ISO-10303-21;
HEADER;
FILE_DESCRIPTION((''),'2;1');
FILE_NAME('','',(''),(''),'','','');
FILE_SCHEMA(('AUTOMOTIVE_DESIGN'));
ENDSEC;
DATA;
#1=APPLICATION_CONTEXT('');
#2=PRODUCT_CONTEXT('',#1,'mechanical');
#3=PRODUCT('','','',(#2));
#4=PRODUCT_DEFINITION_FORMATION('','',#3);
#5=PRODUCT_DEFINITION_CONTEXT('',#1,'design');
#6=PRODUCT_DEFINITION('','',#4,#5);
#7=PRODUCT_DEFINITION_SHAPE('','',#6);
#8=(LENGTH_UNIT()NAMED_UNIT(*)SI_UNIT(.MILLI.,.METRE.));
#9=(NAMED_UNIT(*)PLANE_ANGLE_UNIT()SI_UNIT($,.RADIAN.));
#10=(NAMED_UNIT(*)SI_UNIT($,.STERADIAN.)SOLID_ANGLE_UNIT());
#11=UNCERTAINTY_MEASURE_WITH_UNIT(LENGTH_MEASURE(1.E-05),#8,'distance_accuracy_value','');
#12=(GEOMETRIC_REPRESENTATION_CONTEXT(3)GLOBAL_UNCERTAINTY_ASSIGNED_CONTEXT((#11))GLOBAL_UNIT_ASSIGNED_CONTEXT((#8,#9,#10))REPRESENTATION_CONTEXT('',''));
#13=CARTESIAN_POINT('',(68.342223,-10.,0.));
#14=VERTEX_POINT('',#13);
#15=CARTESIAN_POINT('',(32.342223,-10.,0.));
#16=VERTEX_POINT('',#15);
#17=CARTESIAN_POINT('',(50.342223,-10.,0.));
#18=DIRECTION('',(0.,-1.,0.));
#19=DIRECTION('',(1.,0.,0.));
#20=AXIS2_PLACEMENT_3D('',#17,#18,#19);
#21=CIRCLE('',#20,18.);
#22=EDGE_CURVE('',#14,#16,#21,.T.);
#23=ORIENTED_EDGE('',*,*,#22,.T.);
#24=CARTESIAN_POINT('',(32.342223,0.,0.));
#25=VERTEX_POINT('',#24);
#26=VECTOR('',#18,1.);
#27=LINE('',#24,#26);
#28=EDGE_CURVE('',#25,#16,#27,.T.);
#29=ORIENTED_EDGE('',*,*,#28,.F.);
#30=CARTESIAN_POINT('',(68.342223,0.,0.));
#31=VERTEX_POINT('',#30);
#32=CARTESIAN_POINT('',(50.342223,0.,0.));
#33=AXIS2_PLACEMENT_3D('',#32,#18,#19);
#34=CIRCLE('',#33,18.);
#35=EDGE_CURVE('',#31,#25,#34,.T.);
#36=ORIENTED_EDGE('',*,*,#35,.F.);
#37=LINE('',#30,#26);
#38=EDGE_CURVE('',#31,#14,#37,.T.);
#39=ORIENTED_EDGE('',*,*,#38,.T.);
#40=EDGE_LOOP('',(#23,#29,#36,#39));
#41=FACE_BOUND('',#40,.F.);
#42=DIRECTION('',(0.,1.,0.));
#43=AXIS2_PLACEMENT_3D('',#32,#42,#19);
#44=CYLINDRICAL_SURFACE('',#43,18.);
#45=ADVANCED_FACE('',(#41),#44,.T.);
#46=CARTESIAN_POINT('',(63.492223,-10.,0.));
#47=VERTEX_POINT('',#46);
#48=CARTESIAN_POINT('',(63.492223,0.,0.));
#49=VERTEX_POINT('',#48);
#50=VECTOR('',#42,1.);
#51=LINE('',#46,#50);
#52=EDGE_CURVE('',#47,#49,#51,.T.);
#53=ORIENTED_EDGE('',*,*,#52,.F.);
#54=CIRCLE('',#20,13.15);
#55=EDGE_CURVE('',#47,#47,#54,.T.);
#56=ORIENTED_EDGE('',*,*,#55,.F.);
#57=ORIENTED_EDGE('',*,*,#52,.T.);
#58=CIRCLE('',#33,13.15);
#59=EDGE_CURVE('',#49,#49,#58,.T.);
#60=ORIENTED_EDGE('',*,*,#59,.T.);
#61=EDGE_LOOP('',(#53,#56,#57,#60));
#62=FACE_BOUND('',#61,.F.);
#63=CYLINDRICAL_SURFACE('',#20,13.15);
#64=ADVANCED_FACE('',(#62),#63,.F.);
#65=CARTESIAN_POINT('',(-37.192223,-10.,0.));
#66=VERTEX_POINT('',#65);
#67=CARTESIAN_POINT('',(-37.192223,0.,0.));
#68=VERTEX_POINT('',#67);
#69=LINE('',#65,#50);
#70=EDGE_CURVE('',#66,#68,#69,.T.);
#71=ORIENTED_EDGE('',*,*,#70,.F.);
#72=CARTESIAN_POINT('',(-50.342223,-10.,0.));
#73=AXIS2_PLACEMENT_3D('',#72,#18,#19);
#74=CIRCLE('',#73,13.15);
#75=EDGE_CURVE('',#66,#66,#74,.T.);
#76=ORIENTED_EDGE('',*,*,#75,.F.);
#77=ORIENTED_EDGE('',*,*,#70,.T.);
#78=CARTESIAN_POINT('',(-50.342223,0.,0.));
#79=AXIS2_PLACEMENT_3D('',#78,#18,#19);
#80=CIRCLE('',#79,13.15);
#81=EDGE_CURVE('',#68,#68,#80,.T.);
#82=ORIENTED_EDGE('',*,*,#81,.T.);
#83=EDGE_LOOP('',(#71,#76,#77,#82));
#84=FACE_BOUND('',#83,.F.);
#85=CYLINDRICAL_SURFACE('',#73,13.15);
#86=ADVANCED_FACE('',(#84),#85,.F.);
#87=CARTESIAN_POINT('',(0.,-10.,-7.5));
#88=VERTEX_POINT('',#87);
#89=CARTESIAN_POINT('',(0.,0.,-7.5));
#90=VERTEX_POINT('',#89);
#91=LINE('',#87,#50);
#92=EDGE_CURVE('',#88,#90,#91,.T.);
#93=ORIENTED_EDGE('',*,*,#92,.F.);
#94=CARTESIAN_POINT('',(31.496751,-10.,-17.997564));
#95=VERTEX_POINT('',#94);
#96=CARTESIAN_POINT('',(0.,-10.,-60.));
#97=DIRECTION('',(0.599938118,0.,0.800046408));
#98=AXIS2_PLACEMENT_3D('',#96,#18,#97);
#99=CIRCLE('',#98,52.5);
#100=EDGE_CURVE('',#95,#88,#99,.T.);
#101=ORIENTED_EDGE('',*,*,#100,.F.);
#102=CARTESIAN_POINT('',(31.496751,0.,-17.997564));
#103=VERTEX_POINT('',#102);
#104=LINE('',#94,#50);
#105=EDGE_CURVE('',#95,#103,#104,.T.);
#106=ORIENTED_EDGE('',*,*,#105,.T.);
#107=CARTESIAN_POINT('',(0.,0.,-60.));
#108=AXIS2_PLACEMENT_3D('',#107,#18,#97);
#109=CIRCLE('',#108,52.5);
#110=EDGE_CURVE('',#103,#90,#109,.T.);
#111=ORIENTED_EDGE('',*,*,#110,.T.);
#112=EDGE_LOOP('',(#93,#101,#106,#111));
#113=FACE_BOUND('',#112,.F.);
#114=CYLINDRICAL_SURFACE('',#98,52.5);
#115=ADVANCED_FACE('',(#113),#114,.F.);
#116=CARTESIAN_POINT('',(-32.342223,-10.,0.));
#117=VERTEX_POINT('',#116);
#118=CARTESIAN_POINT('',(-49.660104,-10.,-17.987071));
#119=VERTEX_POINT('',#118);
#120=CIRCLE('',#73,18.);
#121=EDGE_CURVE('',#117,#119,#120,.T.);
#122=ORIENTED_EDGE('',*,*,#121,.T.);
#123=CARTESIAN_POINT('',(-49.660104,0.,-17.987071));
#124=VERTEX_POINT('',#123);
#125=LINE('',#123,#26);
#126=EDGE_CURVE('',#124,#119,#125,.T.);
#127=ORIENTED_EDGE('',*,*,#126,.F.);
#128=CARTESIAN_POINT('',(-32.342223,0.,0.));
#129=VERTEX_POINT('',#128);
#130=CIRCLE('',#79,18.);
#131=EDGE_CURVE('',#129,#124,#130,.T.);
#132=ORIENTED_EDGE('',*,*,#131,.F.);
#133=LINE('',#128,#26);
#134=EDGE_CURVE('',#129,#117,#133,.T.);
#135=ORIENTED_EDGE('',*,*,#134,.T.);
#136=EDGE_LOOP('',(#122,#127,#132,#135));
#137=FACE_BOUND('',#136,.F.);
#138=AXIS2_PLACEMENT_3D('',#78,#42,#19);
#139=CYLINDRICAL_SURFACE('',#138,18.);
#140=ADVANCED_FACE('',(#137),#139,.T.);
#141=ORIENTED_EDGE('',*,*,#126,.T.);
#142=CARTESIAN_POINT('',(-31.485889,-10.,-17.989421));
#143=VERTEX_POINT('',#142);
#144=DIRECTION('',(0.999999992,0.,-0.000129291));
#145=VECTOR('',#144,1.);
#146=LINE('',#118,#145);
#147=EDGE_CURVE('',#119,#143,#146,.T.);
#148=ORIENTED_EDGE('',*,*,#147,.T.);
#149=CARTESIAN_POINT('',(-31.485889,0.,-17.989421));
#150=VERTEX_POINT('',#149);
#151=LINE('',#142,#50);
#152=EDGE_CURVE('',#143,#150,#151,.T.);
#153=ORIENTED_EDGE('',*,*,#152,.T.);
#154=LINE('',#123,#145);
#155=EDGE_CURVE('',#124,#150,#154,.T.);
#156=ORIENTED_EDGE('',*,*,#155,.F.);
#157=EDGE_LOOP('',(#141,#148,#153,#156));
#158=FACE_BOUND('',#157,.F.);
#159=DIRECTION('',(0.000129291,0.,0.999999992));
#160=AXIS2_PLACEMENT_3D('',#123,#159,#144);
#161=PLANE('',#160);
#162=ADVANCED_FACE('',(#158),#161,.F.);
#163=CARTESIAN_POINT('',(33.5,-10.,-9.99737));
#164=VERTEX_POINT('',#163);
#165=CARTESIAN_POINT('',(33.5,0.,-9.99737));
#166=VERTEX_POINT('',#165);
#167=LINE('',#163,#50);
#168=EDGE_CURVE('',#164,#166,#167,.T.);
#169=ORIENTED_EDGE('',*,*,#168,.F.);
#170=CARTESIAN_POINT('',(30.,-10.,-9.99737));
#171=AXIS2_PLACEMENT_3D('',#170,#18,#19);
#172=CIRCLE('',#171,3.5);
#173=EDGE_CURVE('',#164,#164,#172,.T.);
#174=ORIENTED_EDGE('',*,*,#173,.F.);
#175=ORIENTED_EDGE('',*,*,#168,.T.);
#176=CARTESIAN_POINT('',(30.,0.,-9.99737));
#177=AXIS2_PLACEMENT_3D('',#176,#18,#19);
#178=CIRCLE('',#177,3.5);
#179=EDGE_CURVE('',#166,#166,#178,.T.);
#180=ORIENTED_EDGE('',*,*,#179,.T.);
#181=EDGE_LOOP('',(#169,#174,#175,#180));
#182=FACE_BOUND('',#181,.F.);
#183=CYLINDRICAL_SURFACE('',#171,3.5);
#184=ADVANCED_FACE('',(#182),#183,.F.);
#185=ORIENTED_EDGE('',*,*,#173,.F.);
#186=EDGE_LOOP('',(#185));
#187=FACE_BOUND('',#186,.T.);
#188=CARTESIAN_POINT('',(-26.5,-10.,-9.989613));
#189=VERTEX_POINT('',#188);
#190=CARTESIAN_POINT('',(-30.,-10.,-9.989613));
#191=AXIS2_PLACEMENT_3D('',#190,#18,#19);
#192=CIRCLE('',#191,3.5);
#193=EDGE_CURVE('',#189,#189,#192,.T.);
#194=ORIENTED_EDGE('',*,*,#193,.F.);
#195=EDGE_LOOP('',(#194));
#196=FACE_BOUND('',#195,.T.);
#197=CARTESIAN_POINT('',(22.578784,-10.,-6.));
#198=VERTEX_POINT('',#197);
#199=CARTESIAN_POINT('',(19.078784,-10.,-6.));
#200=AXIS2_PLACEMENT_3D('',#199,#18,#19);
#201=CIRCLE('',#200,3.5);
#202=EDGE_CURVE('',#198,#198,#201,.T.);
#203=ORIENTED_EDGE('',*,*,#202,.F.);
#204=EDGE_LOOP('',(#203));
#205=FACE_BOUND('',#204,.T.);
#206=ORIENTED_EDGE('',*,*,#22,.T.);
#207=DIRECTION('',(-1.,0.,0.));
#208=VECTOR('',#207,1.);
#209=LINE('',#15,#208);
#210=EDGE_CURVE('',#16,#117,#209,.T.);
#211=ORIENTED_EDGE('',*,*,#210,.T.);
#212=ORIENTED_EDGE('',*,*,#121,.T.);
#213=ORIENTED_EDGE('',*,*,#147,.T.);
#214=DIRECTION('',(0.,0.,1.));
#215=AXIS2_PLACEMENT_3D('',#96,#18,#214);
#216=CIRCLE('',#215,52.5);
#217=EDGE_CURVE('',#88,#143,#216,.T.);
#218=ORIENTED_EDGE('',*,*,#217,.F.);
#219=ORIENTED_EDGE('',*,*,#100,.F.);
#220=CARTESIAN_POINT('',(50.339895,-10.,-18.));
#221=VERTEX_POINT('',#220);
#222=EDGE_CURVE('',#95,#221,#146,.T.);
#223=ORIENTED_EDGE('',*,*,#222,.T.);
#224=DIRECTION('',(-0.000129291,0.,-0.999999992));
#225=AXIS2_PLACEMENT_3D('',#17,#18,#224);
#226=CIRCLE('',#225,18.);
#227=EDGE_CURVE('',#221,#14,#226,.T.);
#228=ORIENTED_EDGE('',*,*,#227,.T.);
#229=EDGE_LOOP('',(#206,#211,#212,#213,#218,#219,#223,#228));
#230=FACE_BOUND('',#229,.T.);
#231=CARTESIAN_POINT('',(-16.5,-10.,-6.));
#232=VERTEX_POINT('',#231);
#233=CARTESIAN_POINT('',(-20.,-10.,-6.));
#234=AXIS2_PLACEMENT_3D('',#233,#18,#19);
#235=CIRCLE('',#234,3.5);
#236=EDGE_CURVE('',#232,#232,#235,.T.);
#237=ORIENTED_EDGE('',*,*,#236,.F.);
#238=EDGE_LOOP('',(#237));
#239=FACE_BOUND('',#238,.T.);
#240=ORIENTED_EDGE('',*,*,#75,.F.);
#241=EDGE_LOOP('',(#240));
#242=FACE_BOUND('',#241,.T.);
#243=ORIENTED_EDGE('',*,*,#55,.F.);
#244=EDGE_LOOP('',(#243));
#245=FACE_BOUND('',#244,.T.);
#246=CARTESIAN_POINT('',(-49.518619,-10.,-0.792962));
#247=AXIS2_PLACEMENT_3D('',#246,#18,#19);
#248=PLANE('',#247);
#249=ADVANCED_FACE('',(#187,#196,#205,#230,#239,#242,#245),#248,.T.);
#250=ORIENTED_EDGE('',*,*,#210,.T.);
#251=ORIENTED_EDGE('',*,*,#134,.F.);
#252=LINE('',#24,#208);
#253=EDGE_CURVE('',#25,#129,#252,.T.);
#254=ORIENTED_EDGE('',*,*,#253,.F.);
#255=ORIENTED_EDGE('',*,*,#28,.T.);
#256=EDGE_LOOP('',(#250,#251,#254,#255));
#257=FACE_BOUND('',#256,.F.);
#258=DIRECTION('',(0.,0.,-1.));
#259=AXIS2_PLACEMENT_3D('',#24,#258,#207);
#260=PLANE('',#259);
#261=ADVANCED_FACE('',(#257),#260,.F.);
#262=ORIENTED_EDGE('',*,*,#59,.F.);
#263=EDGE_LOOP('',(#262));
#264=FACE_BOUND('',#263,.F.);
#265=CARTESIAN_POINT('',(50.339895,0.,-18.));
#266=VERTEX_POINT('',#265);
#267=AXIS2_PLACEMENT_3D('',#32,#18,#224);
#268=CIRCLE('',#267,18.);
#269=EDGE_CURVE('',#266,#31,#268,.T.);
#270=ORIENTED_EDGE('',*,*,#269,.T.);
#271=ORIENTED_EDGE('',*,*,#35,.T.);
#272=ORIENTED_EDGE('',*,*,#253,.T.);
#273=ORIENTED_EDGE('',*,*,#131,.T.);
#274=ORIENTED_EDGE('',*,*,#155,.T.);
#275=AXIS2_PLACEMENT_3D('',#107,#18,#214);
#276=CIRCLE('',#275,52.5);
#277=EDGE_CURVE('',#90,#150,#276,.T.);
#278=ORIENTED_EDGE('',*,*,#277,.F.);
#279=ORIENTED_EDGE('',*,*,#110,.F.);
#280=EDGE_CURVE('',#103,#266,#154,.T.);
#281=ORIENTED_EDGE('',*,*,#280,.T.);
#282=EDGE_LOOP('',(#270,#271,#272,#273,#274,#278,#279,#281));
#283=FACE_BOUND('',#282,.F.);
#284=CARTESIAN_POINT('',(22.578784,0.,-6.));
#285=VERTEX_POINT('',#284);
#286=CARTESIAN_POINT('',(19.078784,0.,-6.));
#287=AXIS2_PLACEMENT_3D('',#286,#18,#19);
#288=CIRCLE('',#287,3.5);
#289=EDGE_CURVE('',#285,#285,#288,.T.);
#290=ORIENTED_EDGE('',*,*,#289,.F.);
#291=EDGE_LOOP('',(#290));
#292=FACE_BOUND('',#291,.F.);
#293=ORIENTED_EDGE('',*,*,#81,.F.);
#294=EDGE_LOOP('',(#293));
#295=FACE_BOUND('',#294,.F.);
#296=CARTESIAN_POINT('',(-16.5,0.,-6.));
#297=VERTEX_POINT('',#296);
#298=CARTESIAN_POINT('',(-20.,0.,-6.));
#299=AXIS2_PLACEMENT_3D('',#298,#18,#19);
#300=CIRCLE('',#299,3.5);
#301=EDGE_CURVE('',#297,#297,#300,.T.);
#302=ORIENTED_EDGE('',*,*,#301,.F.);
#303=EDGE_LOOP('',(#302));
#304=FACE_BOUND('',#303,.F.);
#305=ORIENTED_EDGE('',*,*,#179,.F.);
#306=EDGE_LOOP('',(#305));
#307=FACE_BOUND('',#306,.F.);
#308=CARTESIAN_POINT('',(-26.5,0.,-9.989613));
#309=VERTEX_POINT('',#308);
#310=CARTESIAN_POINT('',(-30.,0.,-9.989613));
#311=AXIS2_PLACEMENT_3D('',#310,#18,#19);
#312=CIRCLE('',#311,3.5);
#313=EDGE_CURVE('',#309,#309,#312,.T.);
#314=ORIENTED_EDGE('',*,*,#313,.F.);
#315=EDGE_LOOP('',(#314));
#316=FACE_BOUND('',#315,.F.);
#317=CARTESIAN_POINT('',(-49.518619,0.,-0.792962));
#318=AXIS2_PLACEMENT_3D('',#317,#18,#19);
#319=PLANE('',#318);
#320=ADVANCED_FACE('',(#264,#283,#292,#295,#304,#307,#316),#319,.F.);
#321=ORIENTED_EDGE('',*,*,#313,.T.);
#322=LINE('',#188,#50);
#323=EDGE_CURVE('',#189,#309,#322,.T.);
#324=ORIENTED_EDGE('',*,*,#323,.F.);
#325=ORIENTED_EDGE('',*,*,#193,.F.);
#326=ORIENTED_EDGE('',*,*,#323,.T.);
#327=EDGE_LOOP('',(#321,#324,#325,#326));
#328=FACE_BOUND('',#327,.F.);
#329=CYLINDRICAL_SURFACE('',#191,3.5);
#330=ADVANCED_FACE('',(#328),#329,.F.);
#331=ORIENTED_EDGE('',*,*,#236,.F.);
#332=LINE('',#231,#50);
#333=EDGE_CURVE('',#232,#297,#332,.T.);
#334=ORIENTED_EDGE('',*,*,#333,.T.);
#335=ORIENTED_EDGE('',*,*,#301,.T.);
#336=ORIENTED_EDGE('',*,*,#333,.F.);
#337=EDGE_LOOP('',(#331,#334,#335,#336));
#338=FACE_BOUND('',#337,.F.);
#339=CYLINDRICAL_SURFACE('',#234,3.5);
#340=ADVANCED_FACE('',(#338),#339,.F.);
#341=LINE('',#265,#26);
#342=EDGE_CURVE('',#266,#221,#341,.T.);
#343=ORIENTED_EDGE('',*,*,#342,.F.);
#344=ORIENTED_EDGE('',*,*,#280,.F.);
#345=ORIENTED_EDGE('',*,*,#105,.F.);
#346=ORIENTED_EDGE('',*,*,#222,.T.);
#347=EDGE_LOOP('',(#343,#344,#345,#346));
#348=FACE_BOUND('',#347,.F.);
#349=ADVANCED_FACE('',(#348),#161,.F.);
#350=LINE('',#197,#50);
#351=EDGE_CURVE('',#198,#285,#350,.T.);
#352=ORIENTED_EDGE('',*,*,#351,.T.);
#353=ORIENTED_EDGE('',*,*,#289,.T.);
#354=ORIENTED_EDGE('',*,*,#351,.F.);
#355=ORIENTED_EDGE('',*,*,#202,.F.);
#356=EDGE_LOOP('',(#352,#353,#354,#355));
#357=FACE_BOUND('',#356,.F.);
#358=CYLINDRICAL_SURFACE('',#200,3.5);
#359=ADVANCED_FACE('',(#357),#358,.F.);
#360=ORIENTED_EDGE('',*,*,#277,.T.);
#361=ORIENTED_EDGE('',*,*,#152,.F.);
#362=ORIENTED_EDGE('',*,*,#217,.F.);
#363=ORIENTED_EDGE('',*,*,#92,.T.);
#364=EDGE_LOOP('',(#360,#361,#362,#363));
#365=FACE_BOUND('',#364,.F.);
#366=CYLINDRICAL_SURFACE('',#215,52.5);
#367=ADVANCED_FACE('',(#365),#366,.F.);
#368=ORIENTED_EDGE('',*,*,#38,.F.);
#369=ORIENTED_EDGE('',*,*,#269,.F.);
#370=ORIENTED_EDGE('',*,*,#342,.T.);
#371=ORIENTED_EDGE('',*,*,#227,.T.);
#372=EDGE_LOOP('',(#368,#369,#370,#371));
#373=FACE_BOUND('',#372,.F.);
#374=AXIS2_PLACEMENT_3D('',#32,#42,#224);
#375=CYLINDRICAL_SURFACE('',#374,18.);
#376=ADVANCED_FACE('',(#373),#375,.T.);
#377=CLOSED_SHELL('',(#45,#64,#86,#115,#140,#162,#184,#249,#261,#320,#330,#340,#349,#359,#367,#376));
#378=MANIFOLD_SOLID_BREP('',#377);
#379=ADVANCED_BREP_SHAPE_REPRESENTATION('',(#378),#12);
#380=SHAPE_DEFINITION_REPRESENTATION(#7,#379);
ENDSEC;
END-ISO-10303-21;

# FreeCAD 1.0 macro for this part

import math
import FreeCAD as App
import Part
import Sketcher

V = App.Vector
Q = App.Units.Quantity

doc = App.newDocument("Part")
body = doc.addObject("PartDesign::Body", "Body")

sketch1 = body.newObject("Sketcher::SketchObject", "Sketch")
sketch1.AttachmentSupport = (doc.getObject("XZ_Plane"), [""])
sketch1.MapMode = "FlatFace"
sketch1.addGeometry(Part.ArcOfCircle(Part.Circle(V(-50, 0, 0), V(0, 0, 1), 18), math.radians(0), math.radians(272)), False)
sketch1.addGeometry(Part.LineSegment(V(-50, -18, 0), V(50, -18, 0)), False)
sketch1.addGeometry(Part.ArcOfCircle(Part.Circle(V(50, 0, 0), V(0, 0, 1), 18), math.radians(-90), math.radians(0)), False)
sketch1.addGeometry(Part.ArcOfCircle(Part.Circle(V(50, 0, 0), V(0, 0, 1), 18), math.radians(0), math.radians(180)), False)
sketch1.addGeometry(Part.LineSegment(V(32, 0, 0), V(-32, 0, 0)), False)
sketch1.addConstraint(Sketcher.Constraint("Coincident", 0, 2, 1, 1))
sketch1.addConstraint(Sketcher.Constraint("Tangent", 1, 2, 2, 1))
sketch1.addConstraint(Sketcher.Constraint("Tangent", 2, 2, 3, 1))
sketch1.addConstraint(Sketcher.Constraint("Coincident", 3, 2, 4, 1))
sketch1.addConstraint(Sketcher.Constraint("Coincident", 4, 2, 0, 1))
sketch1.addConstraint(Sketcher.Constraint("Horizontal", 4))
sketch1.addConstraint(Sketcher.Constraint("Equal", 0, 2))
sketch1.addConstraint(Sketcher.Constraint("Equal", 2, 3))
sketch1.addConstraint(Sketcher.Constraint("Symmetric", 0, 3, 2, 3, -1, 1))
sketch1.addConstraint(Sketcher.Constraint("PointOnObject", 0, 3, -1))
sketch1.addConstraint(Sketcher.Constraint("PointOnObject", 2, 2, -1))
sketch1.addConstraint(Sketcher.Constraint("PointOnObject", 3, 2, -1))
sketch1.addConstraint(Sketcher.Constraint("Radius", 0, Q("18 mm")))
sketch1.addConstraint(Sketcher.Constraint("Distance", 1, Q("100 mm")))
sketch1.addConstraint(Sketcher.Constraint("DistanceX", 4, 2, 4, 1, Q("64.684445 mm")))
pad1 = body.newObject("PartDesign::Pad", "Pad")
pad1.Profile = sketch1
pad1.Length = 10

sketch2 = body.newObject("Sketcher::SketchObject", "Sketch001")
sketch2.AttachmentSupport = (doc.getObject("XZ_Plane"), [""])
sketch2.MapMode = "FlatFace"
sketch2.AttachmentOffset = App.Placement(V(0, 0, 10), App.Rotation())
sketch2.addGeometry(Part.Circle(V(-50, 0, 0), V(0, 0, 1), 13), False)
sketch2.addGeometry(Part.Circle(V(50, 0, 0), V(0, 0, 1), 13), False)
sketch2.addConstraint(Sketcher.Constraint("Equal", 0, 1))
sketch2.addConstraint(Sketcher.Constraint("Symmetric", 0, 3, 1, 3, -1, 1))
sketch2.addConstraint(Sketcher.Constraint("PointOnObject", 0, 3, -1))
sketch2.addConstraint(Sketcher.Constraint("Diameter", 0, Q("26.3 mm")))
sketch2.addConstraint(Sketcher.Constraint("DistanceX", 0, 3, -1, 1, Q("50.342223 mm")))
pocket1 = body.newObject("PartDesign::Pocket", "Pocket")
pocket1.Profile = sketch2
pocket1.Length = 25

sketch3 = body.newObject("Sketcher::SketchObject", "Sketch002")
sketch3.AttachmentSupport = (doc.getObject("XZ_Plane"), [""])
sketch3.MapMode = "FlatFace"
sketch3.AttachmentOffset = App.Placement(V(0, 0, 10), App.Rotation())
sketch3.addGeometry(Part.ArcOfCircle(Part.Circle(V(0, -60, 0), V(0, 0, 1), 53), math.radians(53), math.radians(90)), False)
sketch3.addGeometry(Part.ArcOfCircle(Part.Circle(V(0, -60, 0), V(0, 0, 1), 53), math.radians(90), math.radians(127)), False)
sketch3.addGeometry(Part.LineSegment(V(-31, -18, 0), V(0, -18, 0)), False)
sketch3.addGeometry(Part.LineSegment(V(0, -18, 0), V(31, -18, 0)), False)
sketch3.addConstraint(Sketcher.Constraint("Tangent", 0, 2, 1, 1))
sketch3.addConstraint(Sketcher.Constraint("Coincident", 1, 2, 2, 1))
sketch3.addConstraint(Sketcher.Constraint("Coincident", 2, 2, 3, 1))
sketch3.addConstraint(Sketcher.Constraint("Coincident", 3, 2, 0, 1))
sketch3.addConstraint(Sketcher.Constraint("Equal", 0, 1))
sketch3.addConstraint(Sketcher.Constraint("PointOnObject", 0, 3, -2))
sketch3.addConstraint(Sketcher.Constraint("PointOnObject", 0, 2, -2))
sketch3.addConstraint(Sketcher.Constraint("PointOnObject", 2, 2, -2))
sketch3.addConstraint(Sketcher.Constraint("Parallel", 2, 3))
sketch3.addConstraint(Sketcher.Constraint("Radius", 0, Q("52.5 mm")))
sketch3.addConstraint(Sketcher.Constraint("DistanceY", 0, 3, -1, 1, Q("60 mm")))
sketch3.addConstraint(Sketcher.Constraint("Distance", 2, Q("31.485889 mm")))
sketch3.addConstraint(Sketcher.Constraint("Distance", 3, Q("31.496751 mm")))
pocket2 = body.newObject("PartDesign::Pocket", "Pocket001")
pocket2.Profile = sketch3
pocket2.Type = "ThroughAll"

sketch4 = body.newObject("Sketcher::SketchObject", "Sketch003")
sketch4.AttachmentSupport = (doc.getObject("XZ_Plane"), [""])
sketch4.MapMode = "FlatFace"
sketch4.AttachmentOffset = App.Placement(V(0, 0, 10), App.Rotation())
sketch4.addGeometry(Part.Circle(V(-30, -10, 0), V(0, 0, 1), 3.5), False)
sketch4.addGeometry(Part.Circle(V(-20, -6, 0), V(0, 0, 1), 3.5), False)
sketch4.addGeometry(Part.Circle(V(19.1, -6, 0), V(0, 0, 1), 3.5), False)
sketch4.addGeometry(Part.Circle(V(30, -10, 0), V(0, 0, 1), 3.5), False)
sketch4.addConstraint(Sketcher.Constraint("Equal", 0, 1))
sketch4.addConstraint(Sketcher.Constraint("Equal", 1, 2))
sketch4.addConstraint(Sketcher.Constraint("Equal", 2, 3))
sketch4.addConstraint(Sketcher.Constraint("Horizontal", 1, 3, 2, 3))
sketch4.addConstraint(Sketcher.Constraint("Diameter", 0, Q("7 mm")))
sketch4.addConstraint(Sketcher.Constraint("DistanceX", 0, 3, -1, 1, Q("30 mm")))
sketch4.addConstraint(Sketcher.Constraint("DistanceX", 1, 3, -1, 1, Q("20 mm")))
sketch4.addConstraint(Sketcher.Constraint("DistanceY", 1, 3, -1, 1, Q("6 mm")))
sketch4.addConstraint(Sketcher.Constraint("DistanceX", -1, 1, 3, 3, Q("30 mm")))
sketch4.addConstraint(Sketcher.Constraint("DistanceY", 3, 3, -1, 1, Q("9.99737 mm")))
sketch4.addConstraint(Sketcher.Constraint("DistanceY", 0, 3, -1, 1, Q("9.989613 mm")))
sketch4.addConstraint(Sketcher.Constraint("DistanceX", -1, 1, 2, 3, Q("19.078784 mm")))
pocket3 = body.newObject("PartDesign::Pocket", "Pocket002")
pocket3.Profile = sketch4
pocket3.Type = "ThroughAll"

doc.recompute()
